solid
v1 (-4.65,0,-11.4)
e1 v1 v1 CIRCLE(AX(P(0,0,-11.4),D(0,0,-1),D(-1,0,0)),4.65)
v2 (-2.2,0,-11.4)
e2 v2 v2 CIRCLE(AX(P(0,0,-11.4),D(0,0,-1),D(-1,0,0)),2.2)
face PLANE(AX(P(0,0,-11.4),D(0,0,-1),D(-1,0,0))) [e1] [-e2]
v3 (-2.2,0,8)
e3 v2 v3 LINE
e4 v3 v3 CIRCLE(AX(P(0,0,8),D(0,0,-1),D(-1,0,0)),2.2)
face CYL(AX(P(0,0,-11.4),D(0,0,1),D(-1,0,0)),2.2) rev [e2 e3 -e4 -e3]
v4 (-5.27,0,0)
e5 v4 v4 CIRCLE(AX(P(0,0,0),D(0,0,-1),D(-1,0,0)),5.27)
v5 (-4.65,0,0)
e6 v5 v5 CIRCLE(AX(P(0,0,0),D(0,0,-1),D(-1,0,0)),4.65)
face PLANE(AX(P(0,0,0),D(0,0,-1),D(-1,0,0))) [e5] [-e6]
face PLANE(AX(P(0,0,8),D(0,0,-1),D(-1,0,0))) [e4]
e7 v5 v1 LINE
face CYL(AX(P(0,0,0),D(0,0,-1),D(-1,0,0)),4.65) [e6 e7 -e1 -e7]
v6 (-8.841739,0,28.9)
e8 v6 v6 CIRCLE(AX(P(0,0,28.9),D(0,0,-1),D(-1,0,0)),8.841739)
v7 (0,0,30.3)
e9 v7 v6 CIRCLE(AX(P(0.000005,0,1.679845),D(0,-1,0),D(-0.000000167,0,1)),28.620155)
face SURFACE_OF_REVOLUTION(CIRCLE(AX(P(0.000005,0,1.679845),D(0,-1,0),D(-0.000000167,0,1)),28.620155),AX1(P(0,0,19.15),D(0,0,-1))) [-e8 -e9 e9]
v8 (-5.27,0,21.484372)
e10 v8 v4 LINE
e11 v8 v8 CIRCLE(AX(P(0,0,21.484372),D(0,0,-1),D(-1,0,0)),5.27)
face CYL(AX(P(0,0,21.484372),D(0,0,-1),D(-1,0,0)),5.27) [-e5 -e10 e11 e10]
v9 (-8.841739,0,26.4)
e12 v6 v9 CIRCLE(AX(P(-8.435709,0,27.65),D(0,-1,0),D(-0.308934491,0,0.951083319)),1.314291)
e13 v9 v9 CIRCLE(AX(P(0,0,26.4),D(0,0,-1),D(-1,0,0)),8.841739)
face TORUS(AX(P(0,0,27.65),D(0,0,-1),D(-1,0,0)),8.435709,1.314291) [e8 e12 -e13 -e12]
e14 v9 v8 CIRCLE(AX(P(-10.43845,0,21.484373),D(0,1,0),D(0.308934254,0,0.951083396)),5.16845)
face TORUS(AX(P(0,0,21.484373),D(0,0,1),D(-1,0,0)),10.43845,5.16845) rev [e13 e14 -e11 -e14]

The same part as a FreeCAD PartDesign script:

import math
import FreeCAD as App
import Part
import Sketcher

V = App.Vector

doc = App.newDocument("Part")
body = doc.addObject("PartDesign::Body", "Body")

# Sketch on XZ plane
sketch1 = body.newObject("Sketcher::SketchObject", "Sketch")
sketch1.AttachmentSupport = (doc.getObject("XZ_Plane"), [""])
sketch1.MapMode = "FlatFace"
sketch1.addGeometry(Part.LineSegment(V(-2.2, 8, 0), V(0, 8, 0)), False)
sketch1.addGeometry(Part.LineSegment(V(0, 8, 0), V(0, 30.3, 0)), False)
sketch1.addGeometry(Part.ArcOfCircle(Part.Circle(V(0, 1.7, 0), V(0, 0, 1), 28.6), math.radians(90), math.radians(108)), False)
sketch1.addGeometry(Part.ArcOfCircle(Part.Circle(V(-8.4, 27.6, 0), V(0, 0, 1), 1.3), math.radians(108), math.radians(252)), False)
sketch1.addGeometry(Part.ArcOfCircle(Part.Circle(V(-10.4, 21.5, 0), V(0, 0, 1), 5.2), math.radians(0), math.radians(72)), False)
sketch1.addGeometry(Part.LineSegment(V(-5.3, 21.5, 0), V(-5.3, 0, 0)), False)
sketch1.addGeometry(Part.LineSegment(V(-5.3, 0, 0), V(-4.7, 0, 0)), False)
sketch1.addGeometry(Part.LineSegment(V(-4.7, 0, 0), V(-4.7, -11.4, 0)), False)
sketch1.addGeometry(Part.LineSegment(V(-4.7, -11.4, 0), V(-2.2, -11.4, 0)), False)
sketch1.addGeometry(Part.LineSegment(V(-2.2, -11.4, 0), V(-2.2, 8, 0)), False)
sketch1.addConstraint(Sketcher.Constraint("Coincident", 0, 2, 1, 1))
sketch1.addConstraint(Sketcher.Constraint("Coincident", 1, 2, 2, 1))
sketch1.addConstraint(Sketcher.Constraint("Tangent", 2, 2, 3, 1))
sketch1.addConstraint(Sketcher.Constraint("Tangent", 3, 2, 4, 2))
sketch1.addConstraint(Sketcher.Constraint("Tangent", 4, 1, 5, 1))
sketch1.addConstraint(Sketcher.Constraint("Coincident", 5, 2, 6, 1))
sketch1.addConstraint(Sketcher.Constraint("Coincident", 6, 2, 7, 1))
sketch1.addConstraint(Sketcher.Constraint("Coincident", 7, 2, 8, 1))
sketch1.addConstraint(Sketcher.Constraint("Coincident", 8, 2, 9, 1))
sketch1.addConstraint(Sketcher.Constraint("Coincident", 9, 2, 0, 1))
sketch1.addConstraint(Sketcher.Constraint("Horizontal", 0))
sketch1.addConstraint(Sketcher.Constraint("Vertical", 1))
sketch1.addConstraint(Sketcher.Constraint("Vertical", 5))
sketch1.addConstraint(Sketcher.Constraint("Horizontal", 6))
sketch1.addConstraint(Sketcher.Constraint("Vertical", 7))
sketch1.addConstraint(Sketcher.Constraint("Horizontal", 8))
sketch1.addConstraint(Sketcher.Constraint("Vertical", 9))
sketch1.addConstraint(Sketcher.Constraint("PointOnObject", 0, 2, -2))
sketch1.addConstraint(Sketcher.Constraint("PointOnObject", 5, 2, -1))
sketch1.addConstraint(Sketcher.Constraint("Vertical", 2, 2, 3, 2))
sketch1.addConstraint(Sketcher.Constraint("DistanceX", 0, 1, 0, 2, 2.2))
sketch1.addConstraint(Sketcher.Constraint("DistanceY", 1, 1, 1, 2, 22.3))
sketch1.addConstraint(Sketcher.Constraint("DistanceY", 7, 2, 7, 1, 11.4))
sketch1.addConstraint(Sketcher.Constraint("DistanceY", 9, 1, 9, 2, 19.4))
sketch1.addConstraint(Sketcher.Constraint("DistanceX", 6, 1, 6, 2, 0.62))
sketch1.addConstraint(Sketcher.Constraint("DistanceX", 8, 1, 8, 2, 2.45))
sketch1.addConstraint(Sketcher.Constraint("DistanceY", -1, 1, 2, 2, 28.9))
sketch1.addConstraint(Sketcher.Constraint("DistanceY", -1, 1, 3, 2, 26.4))
sketch1.addConstraint(Sketcher.Constraint("Radius", 4, 5.16845))
sketch1.addConstraint(Sketcher.Constraint("Radius", 2, 28.620155))
revolution = body.newObject("PartDesign::Revolution", "Revolution")
revolution.Profile = sketch1
revolution.ReferenceAxis = (sketch1, ["V_Axis"])
revolution.Angle = 360

doc.recompute()
